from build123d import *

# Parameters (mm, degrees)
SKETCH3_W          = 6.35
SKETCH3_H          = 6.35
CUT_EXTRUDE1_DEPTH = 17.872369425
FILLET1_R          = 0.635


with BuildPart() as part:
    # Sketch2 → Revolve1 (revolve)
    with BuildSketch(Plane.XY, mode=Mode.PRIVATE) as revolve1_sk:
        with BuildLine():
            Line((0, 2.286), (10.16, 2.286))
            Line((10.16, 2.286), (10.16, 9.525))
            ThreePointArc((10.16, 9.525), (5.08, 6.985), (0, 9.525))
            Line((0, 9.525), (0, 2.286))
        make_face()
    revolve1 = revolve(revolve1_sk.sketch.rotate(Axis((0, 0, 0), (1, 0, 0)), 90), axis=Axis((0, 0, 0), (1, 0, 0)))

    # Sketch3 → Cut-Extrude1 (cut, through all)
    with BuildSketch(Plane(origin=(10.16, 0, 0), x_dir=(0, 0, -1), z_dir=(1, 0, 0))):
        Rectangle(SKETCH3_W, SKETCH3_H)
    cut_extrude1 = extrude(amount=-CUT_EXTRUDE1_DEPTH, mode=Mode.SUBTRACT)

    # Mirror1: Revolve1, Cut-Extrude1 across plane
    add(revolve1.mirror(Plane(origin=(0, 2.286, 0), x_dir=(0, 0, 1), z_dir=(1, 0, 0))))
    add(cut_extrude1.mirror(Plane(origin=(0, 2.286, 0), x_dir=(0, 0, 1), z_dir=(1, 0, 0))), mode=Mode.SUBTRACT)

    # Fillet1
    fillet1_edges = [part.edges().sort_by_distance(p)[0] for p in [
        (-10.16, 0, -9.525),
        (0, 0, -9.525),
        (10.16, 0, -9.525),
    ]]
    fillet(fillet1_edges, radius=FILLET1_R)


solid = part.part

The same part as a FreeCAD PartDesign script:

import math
import FreeCAD as App
import Part
import Sketcher
Q = App.Units.Quantity


def edges_at(feature, points):
    """Names of the edges that pass closest to the given points."""
    edges = feature.Shape.Edges
    near = lambda p: min(range(len(edges)), key=lambda i: edges[i].distToShape(Part.Vertex(*p))[0])
    return sorted({f"Edge{near(p) + 1}" for p in points})


def add_polygon(sketch, points):
    """Adds a closed chain of lines whose ends are joined by coincident constraints."""
    first, n = sketch.GeometryCount, len(points)
    for a, b in zip(points, points[1:] + points[:1]):
        sketch.addGeometry(Part.LineSegment(App.Vector(*a, 0), App.Vector(*b, 0)), False)
    for i in range(n):
        sketch.addConstraint(Sketcher.Constraint("Coincident", first + i, 2, first + (i + 1) % n, 1))

doc = App.newDocument("Part")
body = doc.addObject("PartDesign::Body", "Body")

sketch1 = body.newObject("Sketcher::SketchObject", "Sketch")
sketch1.AttachmentSupport = (doc.getObject("XY_Plane"), [""])
sketch1.MapMode = "FlatFace"
sketch1.addGeometry(Part.LineSegment(App.Vector(0, 2.286, 0), App.Vector(10.16, 2.286, 0)), False)
sketch1.addGeometry(Part.LineSegment(App.Vector(10.16, 2.286, 0), App.Vector(10.16, 9.525, 0)), False)
sketch1.addGeometry(Part.ArcOfCircle(Part.Circle(App.Vector(5.08, 13.335, 0), App.Vector(0, 0, 1), 6.35), math.radians(-143.130102), math.radians(-36.869898)), False)
sketch1.addGeometry(Part.LineSegment(App.Vector(0, 9.525, 0), App.Vector(0, 2.286, 0)), False)
sketch1.addConstraint(Sketcher.Constraint("Coincident", 0, 2, 1, 1))
sketch1.addConstraint(Sketcher.Constraint("Coincident", 1, 2, 2, 2))
sketch1.addConstraint(Sketcher.Constraint("Coincident", 2, 1, 3, 1))
sketch1.addConstraint(Sketcher.Constraint("Coincident", 3, 2, 0, 1))
sketch1.addConstraint(Sketcher.Constraint("Horizontal", 0))
sketch1.addConstraint(Sketcher.Constraint("Vertical", 1))
sketch1.addConstraint(Sketcher.Constraint("Vertical", 3))
sketch1.addConstraint(Sketcher.Constraint("PointOnObject", 2, 1, -2))
sketch1.addConstraint(Sketcher.Constraint("Horizontal", 1, 2, 2, 1))
sketch1.addConstraint(Sketcher.Constraint("Radius", 2, Q("0.25 in")))
sketch1.addConstraint(Sketcher.Constraint("DistanceX", 0, 1, 0, 2, Q("0.4 in")))
sketch1.addConstraint(Sketcher.Constraint("DistanceY", 1, 1, 1, 2, Q("0.285 in")))
sketch1.addConstraint(Sketcher.Constraint("DistanceY", -1, 1, 0, 2, Q("0.09 in")))
revolution = body.newObject("PartDesign::Revolution", "Revolution")
revolution.Profile = sketch1
revolution.ReferenceAxis = (sketch1, ["H_Axis"])
revolution.Angle = 360

sketch2 = body.newObject("Sketcher::SketchObject", "Sketch001")
sketch2.AttachmentSupport = (doc.getObject("YZ_Plane"), [""])
sketch2.MapMode = "FlatFace"
sketch2.AttachmentOffset = App.Placement(App.Vector(0, 0, 0.4 * 25.4), App.Rotation())
add_polygon(sketch2, [(3.175, 3.175), (-3.175, 3.175), (-3.175, -3.175), (3.175, -3.175)])
sketch2.addConstraint(Sketcher.Constraint("Horizontal", 0))
sketch2.addConstraint(Sketcher.Constraint("Vertical", 1))
sketch2.addConstraint(Sketcher.Constraint("Horizontal", 2))
sketch2.addConstraint(Sketcher.Constraint("Vertical", 3))
sketch2.addConstraint(Sketcher.Constraint("Symmetric", 0, 2, 2, 2, -1, 1))
sketch2.addConstraint(Sketcher.Constraint("Equal", 2, 1))
sketch2.addConstraint(Sketcher.Constraint("DistanceX", 0, 2, 0, 1, Q("0.25 in")))
pocket1 = body.newObject("PartDesign::Pocket", "Pocket")
pocket1.Profile = sketch2
pocket1.Type = "ThroughAll"
doc.recompute()

mirrored = body.newObject("PartDesign::Mirrored", "Mirrored")
mirrored.Originals = [revolution, pocket1]
mirrored.MirrorPlane = (doc.getObject("YZ_Plane"), [""])
body.Tip = mirrored
doc.recompute()

fillet = body.newObject("PartDesign::Fillet", "Fillet")
fillet.Base = (mirrored, edges_at(mirrored, [(-10.16, 0, -9.525), (0, 0, -9.525), (10.16, 0, -9.525)]))
fillet.Radius = Q("0.025 in")

doc.recompute()
